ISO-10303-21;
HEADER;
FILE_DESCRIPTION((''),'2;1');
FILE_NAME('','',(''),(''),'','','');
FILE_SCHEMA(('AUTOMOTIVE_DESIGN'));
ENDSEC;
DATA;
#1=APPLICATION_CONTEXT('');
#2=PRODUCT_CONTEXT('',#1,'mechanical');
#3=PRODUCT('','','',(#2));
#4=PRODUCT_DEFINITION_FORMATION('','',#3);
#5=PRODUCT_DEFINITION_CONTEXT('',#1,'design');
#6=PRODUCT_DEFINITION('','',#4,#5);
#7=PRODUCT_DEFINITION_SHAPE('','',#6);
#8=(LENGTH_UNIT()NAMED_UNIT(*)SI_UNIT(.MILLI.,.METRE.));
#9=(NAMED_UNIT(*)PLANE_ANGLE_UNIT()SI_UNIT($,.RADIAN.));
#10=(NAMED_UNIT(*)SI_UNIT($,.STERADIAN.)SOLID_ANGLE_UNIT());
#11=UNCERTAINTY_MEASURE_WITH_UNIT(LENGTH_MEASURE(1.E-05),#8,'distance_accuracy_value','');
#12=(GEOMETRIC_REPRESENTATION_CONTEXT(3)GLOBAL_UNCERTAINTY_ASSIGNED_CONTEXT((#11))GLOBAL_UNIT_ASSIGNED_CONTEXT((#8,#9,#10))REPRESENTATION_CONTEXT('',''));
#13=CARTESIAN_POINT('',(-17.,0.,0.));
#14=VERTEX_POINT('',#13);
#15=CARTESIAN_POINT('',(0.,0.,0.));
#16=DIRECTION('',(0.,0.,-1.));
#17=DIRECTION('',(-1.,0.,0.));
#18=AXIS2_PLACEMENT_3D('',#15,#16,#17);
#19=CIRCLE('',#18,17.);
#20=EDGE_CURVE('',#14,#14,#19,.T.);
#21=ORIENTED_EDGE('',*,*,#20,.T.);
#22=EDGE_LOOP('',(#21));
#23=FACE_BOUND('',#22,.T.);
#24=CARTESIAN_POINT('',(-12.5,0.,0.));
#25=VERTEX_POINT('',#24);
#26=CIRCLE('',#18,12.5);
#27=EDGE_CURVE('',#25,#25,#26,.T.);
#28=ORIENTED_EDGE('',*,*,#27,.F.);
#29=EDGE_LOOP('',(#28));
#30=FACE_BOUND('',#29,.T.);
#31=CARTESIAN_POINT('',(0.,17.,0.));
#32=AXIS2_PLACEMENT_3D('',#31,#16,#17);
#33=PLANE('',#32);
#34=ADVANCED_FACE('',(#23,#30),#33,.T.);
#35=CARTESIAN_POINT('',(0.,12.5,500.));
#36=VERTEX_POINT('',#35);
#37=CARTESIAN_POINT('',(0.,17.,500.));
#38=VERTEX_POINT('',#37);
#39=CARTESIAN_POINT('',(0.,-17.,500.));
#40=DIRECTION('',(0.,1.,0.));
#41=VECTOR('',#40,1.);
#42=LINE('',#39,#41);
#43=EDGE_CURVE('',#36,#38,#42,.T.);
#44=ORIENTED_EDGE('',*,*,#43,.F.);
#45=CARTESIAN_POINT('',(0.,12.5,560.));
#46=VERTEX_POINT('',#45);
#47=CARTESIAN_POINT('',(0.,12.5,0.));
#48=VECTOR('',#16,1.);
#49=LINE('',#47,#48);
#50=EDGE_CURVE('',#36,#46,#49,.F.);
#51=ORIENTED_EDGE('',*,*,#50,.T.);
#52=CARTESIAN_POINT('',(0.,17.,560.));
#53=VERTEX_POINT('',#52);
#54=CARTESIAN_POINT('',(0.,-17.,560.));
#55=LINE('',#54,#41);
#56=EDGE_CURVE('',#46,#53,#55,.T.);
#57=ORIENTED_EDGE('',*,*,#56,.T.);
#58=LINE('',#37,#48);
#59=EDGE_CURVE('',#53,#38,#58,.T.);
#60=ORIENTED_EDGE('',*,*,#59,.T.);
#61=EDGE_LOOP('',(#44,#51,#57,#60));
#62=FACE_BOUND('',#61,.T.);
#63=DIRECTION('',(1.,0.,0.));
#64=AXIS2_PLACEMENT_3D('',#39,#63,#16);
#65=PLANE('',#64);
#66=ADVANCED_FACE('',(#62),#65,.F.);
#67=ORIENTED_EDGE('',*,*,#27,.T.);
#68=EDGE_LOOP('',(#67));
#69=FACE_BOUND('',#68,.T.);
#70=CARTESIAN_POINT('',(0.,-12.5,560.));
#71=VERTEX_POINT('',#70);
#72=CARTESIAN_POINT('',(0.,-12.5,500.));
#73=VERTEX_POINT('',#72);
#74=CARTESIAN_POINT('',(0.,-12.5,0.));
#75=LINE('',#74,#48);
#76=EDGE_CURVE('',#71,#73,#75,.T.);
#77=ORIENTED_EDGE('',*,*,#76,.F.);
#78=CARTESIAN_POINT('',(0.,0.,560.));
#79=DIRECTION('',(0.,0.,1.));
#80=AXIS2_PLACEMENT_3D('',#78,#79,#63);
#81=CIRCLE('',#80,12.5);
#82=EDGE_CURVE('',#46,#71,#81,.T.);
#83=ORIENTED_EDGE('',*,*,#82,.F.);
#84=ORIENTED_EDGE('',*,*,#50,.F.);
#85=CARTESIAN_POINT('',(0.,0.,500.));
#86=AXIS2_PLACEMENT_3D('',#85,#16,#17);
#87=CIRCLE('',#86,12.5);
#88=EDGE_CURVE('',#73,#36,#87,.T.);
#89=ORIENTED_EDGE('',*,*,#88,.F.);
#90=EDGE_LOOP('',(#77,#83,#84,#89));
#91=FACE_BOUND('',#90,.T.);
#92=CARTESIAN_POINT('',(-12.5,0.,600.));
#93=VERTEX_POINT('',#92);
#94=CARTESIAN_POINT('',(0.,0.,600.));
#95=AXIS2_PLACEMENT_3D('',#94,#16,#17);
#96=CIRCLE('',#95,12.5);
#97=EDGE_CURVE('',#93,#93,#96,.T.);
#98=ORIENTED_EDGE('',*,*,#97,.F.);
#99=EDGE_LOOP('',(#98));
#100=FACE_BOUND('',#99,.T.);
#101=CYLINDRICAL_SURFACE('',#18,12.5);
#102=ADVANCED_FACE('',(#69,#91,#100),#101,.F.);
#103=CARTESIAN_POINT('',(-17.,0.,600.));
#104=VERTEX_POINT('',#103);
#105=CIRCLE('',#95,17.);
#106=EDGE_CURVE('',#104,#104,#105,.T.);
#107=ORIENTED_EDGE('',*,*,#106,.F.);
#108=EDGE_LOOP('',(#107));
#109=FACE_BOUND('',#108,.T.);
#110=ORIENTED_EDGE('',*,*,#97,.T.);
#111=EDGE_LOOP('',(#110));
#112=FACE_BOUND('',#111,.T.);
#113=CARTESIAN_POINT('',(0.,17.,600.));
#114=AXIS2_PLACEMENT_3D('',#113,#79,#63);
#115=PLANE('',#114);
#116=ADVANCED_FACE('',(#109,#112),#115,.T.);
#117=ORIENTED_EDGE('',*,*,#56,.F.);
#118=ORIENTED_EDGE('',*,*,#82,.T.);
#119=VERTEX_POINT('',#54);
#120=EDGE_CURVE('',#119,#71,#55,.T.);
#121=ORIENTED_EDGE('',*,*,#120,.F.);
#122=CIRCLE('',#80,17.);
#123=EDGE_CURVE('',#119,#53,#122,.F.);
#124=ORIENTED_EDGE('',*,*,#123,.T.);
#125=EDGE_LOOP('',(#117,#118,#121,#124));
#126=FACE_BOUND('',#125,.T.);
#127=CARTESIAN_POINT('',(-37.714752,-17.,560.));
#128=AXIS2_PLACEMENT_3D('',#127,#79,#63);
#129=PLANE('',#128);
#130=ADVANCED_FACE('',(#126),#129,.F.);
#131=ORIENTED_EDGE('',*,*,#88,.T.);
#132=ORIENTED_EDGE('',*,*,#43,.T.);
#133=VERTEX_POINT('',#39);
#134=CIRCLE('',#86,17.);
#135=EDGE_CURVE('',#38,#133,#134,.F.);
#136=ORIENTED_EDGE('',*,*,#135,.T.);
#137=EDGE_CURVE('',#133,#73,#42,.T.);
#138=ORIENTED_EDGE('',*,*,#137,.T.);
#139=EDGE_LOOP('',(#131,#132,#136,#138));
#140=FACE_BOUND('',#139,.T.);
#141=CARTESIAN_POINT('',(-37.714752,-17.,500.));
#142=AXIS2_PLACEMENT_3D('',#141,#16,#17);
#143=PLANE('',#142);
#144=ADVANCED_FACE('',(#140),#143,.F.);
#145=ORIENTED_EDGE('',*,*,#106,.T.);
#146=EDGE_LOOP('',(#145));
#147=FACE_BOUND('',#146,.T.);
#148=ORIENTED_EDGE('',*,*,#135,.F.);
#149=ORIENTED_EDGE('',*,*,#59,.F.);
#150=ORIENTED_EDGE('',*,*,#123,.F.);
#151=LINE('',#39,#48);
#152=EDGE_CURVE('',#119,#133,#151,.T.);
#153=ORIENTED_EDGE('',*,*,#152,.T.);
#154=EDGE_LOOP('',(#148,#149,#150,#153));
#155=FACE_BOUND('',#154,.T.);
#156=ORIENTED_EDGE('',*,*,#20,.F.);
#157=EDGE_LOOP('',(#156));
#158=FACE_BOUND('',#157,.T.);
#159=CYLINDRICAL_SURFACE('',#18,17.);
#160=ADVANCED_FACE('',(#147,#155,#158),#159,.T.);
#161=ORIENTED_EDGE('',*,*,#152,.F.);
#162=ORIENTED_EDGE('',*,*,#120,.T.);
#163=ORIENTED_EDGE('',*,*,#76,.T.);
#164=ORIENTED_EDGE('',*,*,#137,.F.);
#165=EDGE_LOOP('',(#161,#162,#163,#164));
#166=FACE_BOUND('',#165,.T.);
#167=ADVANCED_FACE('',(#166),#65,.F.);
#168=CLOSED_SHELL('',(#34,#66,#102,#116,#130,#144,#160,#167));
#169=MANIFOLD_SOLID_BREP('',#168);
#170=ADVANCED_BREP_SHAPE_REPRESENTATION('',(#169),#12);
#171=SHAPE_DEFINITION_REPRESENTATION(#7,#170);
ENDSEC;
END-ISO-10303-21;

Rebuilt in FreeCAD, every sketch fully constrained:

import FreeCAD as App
import Part
import Sketcher

V = App.Vector
Q = App.Units.Quantity


def add_polygon(sketch, points):
    """Adds a closed chain of lines whose ends are joined by coincident constraints."""
    first, n = sketch.GeometryCount, len(points)
    for a, b in zip(points, points[1:] + points[:1]):
        sketch.addGeometry(Part.LineSegment(App.Vector(*a, 0), App.Vector(*b, 0)), False)
    for i in range(n):
        sketch.addConstraint(Sketcher.Constraint("Coincident", first + i, 2, first + (i + 1) % n, 1))

doc = App.newDocument("Part")
params = doc.addObject("Spreadsheet::Sheet", "Params")
for row, (alias, value) in enumerate([
    ("sketch1_height", "600 mm"),
    ("sketch1_width", "4.5 mm"),
    ("revolution_angle", "360 deg"),
    ("sketch2_height", "60 mm"),
], start=1):
    params.set(f"A{row}", alias)
    params.set(f"B{row}", "=" + value)
    params.setAlias(f"B{row}", alias)

body = doc.addObject("PartDesign::Body", "Body")

# Sketch on YZ plane
sketch1 = doc.addObject("Sketcher::SketchObject", "Sketch")
body.addObject(sketch1)
sketch1.AttachmentSupport = (doc.YZ_Plane, [""])
sketch1.MapMode = "FlatFace"
add_polygon(sketch1, [(17, 600), (12.5, 600), (12.5, 0), (17, 0)])  # lines 0-3
sketch1.addConstraint([
    Sketcher.Constraint("Horizontal", 0),
    Sketcher.Constraint("Vertical", 1),
    Sketcher.Constraint("Horizontal", 2),
    Sketcher.Constraint("Vertical", 3),
    Sketcher.Constraint("PointOnObject", 1, 2, -1),
    Sketcher.Constraint("DistanceY", 1, 2, 1, 1, Q("600 mm")),
    Sketcher.Constraint("DistanceX", 0, 2, 0, 1, Q("4.5 mm")),
    Sketcher.Constraint("DistanceX", -1, 1, 2, 2, Q("17 mm")),
])
sketch1.setExpression("Constraints[9]", "Params.sketch1_height")
sketch1.setExpression("Constraints[10]", "Params.sketch1_width")
revolution = doc.addObject("PartDesign::Revolution", "Revolution")
body.addObject(revolution)
revolution.Profile = sketch1
revolution.ReferenceAxis = (sketch1, ["V_Axis"])
revolution.setExpression("Angle", "Params.revolution_angle")

# Sketch on XZ plane
sketch2 = doc.addObject("Sketcher::SketchObject", "Sketch001")
body.addObject(sketch2)
sketch2.AttachmentSupport = (doc.XZ_Plane, [""])
sketch2.MapMode = "FlatFace"
add_polygon(sketch2, [(-38, 500), (-38, 560), (0, 560), (0, 500)])  # lines 0-3
sketch2.addConstraint([
    Sketcher.Constraint("Vertical", 0),
    Sketcher.Constraint("Horizontal", 1),
    Sketcher.Constraint("Vertical", 2),
    Sketcher.Constraint("Horizontal", 3),
    Sketcher.Constraint("PointOnObject", 1, 2, -2),
    Sketcher.Constraint("DistanceY", 0, 1, 0, 2, Q("60 mm")),
    Sketcher.Constraint("DistanceY", -1, 1, 0, 2, Q("560 mm")),
    Sketcher.Constraint("DistanceX", 1, 1, 1, 2, Q("37.714752 mm")),
])
sketch2.setExpression("Constraints[9]", "Params.sketch2_height")
pocket1 = doc.addObject("PartDesign::Pocket", "Pocket")
body.addObject(pocket1)
pocket1.Profile = sketch2
pocket1.Type = "ThroughAll"
pocket1.Midplane = True

doc.recompute()
